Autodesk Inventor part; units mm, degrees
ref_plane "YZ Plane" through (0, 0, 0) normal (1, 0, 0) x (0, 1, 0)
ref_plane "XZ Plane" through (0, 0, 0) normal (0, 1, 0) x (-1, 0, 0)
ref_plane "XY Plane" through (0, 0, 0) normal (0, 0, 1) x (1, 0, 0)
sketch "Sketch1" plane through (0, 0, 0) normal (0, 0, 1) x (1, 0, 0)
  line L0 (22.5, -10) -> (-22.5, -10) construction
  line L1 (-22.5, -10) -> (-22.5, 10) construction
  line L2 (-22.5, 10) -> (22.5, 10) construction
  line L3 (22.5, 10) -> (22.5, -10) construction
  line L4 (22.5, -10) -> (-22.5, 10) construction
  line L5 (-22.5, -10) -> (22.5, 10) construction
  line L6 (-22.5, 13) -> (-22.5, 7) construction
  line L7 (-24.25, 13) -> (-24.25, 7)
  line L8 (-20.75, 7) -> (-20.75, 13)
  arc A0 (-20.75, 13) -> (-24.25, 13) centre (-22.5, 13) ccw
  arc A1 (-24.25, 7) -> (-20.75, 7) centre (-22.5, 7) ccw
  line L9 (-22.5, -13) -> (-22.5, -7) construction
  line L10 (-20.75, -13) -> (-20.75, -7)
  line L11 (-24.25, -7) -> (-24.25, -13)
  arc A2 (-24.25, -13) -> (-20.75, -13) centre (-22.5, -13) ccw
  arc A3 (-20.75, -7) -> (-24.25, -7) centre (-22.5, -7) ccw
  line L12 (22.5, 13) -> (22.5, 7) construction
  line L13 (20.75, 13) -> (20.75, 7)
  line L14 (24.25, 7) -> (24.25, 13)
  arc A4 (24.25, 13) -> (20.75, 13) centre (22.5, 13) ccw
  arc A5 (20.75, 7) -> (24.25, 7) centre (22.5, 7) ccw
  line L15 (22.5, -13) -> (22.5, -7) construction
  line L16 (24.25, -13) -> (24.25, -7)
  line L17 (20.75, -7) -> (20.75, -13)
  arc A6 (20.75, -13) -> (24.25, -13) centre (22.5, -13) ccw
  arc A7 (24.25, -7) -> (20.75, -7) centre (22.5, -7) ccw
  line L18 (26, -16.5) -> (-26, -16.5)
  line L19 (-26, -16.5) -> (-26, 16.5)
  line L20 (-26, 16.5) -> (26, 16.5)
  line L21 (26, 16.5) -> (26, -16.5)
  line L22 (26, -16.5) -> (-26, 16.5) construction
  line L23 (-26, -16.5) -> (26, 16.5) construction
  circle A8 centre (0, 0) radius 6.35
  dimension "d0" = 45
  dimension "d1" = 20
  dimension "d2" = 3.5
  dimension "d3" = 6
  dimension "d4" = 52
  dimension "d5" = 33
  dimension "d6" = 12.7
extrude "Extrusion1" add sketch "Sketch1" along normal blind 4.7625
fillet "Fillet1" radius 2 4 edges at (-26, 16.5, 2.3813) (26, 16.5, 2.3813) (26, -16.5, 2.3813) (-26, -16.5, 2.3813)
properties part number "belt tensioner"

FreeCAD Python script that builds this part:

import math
import FreeCAD as App
import Part
import Sketcher
from FreeCAD import Vector


def edges_at(feature, points):
    """Names of the edges that pass closest to the given points."""
    edges = feature.Shape.Edges
    near = lambda p: min(range(len(edges)), key=lambda i: edges[i].distToShape(Part.Vertex(*p))[0])
    return sorted({f"Edge{near(p) + 1}" for p in points})

doc = App.newDocument("Part")
body = doc.addObject("PartDesign::Body", "Body")

# Sketch on XY plane
sketch1 = body.newObject("Sketcher::SketchObject", "Sketch")
sketch1.AttachmentSupport = (doc.getObject("XY_Plane"), [""])
sketch1.MapMode = "FlatFace"
sketch1.addGeometry([
    Part.LineSegment(Vector(-26, -16.5, 0), Vector(26, -16.5, 0)),  # 0
    Part.LineSegment(Vector(26, -16.5, 0), Vector(26, 16.5, 0)),  # 1
    Part.LineSegment(Vector(26, 16.5, 0), Vector(-26, 16.5, 0)),  # 2
    Part.LineSegment(Vector(-26, 16.5, 0), Vector(-26, -16.5, 0)),  # 3
    Part.LineSegment(Vector(-20.8, -7, 0), Vector(-20.8, -13, 0)),  # 4
    Part.ArcOfCircle(Part.Circle(Vector(-22.5, -13, 0), Vector(0, 0, 1), 1.8), math.radians(180), math.radians(360)),  # 5
    Part.LineSegment(Vector(-24.2, -13, 0), Vector(-24.2, -7, 0)),  # 6
    Part.ArcOfCircle(Part.Circle(Vector(-22.5, -7, 0), Vector(0, 0, 1), 1.8), math.radians(0), math.radians(180)),  # 7
    Part.LineSegment(Vector(24.2, -7, 0), Vector(24.2, -13, 0)),  # 8
    Part.ArcOfCircle(Part.Circle(Vector(22.5, -13, 0), Vector(0, 0, 1), 1.8), math.radians(180), math.radians(360)),  # 9
    Part.LineSegment(Vector(20.8, -13, 0), Vector(20.8, -7, 0)),  # 10
    Part.ArcOfCircle(Part.Circle(Vector(22.5, -7, 0), Vector(0, 0, 1), 1.8), math.radians(0), math.radians(180)),  # 11
    Part.LineSegment(Vector(-24.2, 7, 0), Vector(-24.2, 13, 0)),  # 12
    Part.ArcOfCircle(Part.Circle(Vector(-22.5, 13, 0), Vector(0, 0, 1), 1.8), math.radians(0), math.radians(180)),  # 13
    Part.LineSegment(Vector(-20.8, 13, 0), Vector(-20.8, 7, 0)),  # 14
    Part.ArcOfCircle(Part.Circle(Vector(-22.5, 7, 0), Vector(0, 0, 1), 1.8), math.radians(180), math.radians(360)),  # 15
    Part.Circle(Vector(0, 0, 0), Vector(0, 0, 1), 6.3),  # 16
    Part.LineSegment(Vector(20.8, 7, 0), Vector(20.8, 13, 0)),  # 17
    Part.ArcOfCircle(Part.Circle(Vector(22.5, 13, 0), Vector(0, 0, 1), 1.8), math.radians(0), math.radians(180)),  # 18
    Part.LineSegment(Vector(24.2, 13, 0), Vector(24.2, 7, 0)),  # 19
    Part.ArcOfCircle(Part.Circle(Vector(22.5, 7, 0), Vector(0, 0, 1), 1.8), math.radians(180), math.radians(360)),  # 20
], False)
sketch1.addConstraint([
    Sketcher.Constraint("Coincident", 0, 2, 1, 1),
    Sketcher.Constraint("Coincident", 1, 2, 2, 1),
    Sketcher.Constraint("Coincident", 2, 2, 3, 1),
    Sketcher.Constraint("Coincident", 3, 2, 0, 1),
    Sketcher.Constraint("Tangent", 4, 2, 5, 2),
    Sketcher.Constraint("Tangent", 5, 1, 6, 1),
    Sketcher.Constraint("Tangent", 6, 2, 7, 2),
    Sketcher.Constraint("Tangent", 7, 1, 4, 1),
    Sketcher.Constraint("Tangent", 8, 2, 9, 2),
    Sketcher.Constraint("Tangent", 9, 1, 10, 1),
    Sketcher.Constraint("Tangent", 10, 2, 11, 2),
    Sketcher.Constraint("Tangent", 11, 1, 8, 1),
    Sketcher.Constraint("Tangent", 12, 2, 13, 2),
    Sketcher.Constraint("Tangent", 13, 1, 14, 1),
    Sketcher.Constraint("Tangent", 14, 2, 15, 2),
    Sketcher.Constraint("Tangent", 15, 1, 12, 1),
    Sketcher.Constraint("Tangent", 17, 2, 18, 2),
    Sketcher.Constraint("Tangent", 18, 1, 19, 1),
    Sketcher.Constraint("Tangent", 19, 2, 20, 2),
    Sketcher.Constraint("Tangent", 20, 1, 17, 1),
    Sketcher.Constraint("Horizontal", 0),
    Sketcher.Constraint("Vertical", 1),
    Sketcher.Constraint("Horizontal", 2),
    Sketcher.Constraint("Vertical", 3),
    Sketcher.Constraint("Vertical", 4),
    Sketcher.Constraint("Vertical", 6),
    Sketcher.Constraint("Vertical", 8),
    Sketcher.Constraint("Vertical", 10),
    Sketcher.Constraint("Vertical", 12),
    Sketcher.Constraint("Vertical", 14),
    Sketcher.Constraint("Vertical", 17),
    Sketcher.Constraint("Vertical", 19),
    Sketcher.Constraint("Coincident", 16, 3, -1, 1),
    Sketcher.Constraint("Equal", 7, 9),
    Sketcher.Constraint("Equal", 11, 13),
    Sketcher.Constraint("Equal", 15, 18),
    Sketcher.Constraint("Symmetric", 9, 3, 13, 3, -1, 1),
    Sketcher.Constraint("Symmetric", 5, 3, 18, 3, -1, 1),
    Sketcher.Constraint("Symmetric", 0, 2, 2, 2, -1, 1),
    Sketcher.Constraint("Symmetric", 5, 3, 9, 3, -2),
    Sketcher.Constraint("Horizontal", 7, 3, 11, 3),
    Sketcher.Constraint("Horizontal", 15, 3, 20, 3),
    Sketcher.Constraint("Equal", 10, 12),
    Sketcher.Constraint("Diameter", 16, 12.7),
    Sketcher.Constraint("DistanceX", 0, 1, 0, 2, 52.0),
    Sketcher.Constraint("DistanceY", 1, 1, 1, 2, 33.0),
    Sketcher.Constraint("DistanceY", 4, 2, 4, 1, 6.0),
    Sketcher.Constraint("Radius", 5, 1.75),
    Sketcher.Constraint("DistanceX", 5, 3, 9, 3, 45.0),
    Sketcher.Constraint("DistanceY", 7, 3, 13, 3, 20.0),
])
pad1 = body.newObject("PartDesign::Pad", "Pad")
pad1.Profile = sketch1
pad1.Length = 4.7625
doc.recompute()

fillet = body.newObject("PartDesign::Fillet", "Fillet")
fillet.Base = (pad1, edges_at(pad1, [
    (-26, 16.5, 2.381),
    (26, 16.5, 2.381),
    (26, -16.5, 2.381),
    (-26, -16.5, 2.381),
]))
fillet.Radius = 2

doc.recompute()
